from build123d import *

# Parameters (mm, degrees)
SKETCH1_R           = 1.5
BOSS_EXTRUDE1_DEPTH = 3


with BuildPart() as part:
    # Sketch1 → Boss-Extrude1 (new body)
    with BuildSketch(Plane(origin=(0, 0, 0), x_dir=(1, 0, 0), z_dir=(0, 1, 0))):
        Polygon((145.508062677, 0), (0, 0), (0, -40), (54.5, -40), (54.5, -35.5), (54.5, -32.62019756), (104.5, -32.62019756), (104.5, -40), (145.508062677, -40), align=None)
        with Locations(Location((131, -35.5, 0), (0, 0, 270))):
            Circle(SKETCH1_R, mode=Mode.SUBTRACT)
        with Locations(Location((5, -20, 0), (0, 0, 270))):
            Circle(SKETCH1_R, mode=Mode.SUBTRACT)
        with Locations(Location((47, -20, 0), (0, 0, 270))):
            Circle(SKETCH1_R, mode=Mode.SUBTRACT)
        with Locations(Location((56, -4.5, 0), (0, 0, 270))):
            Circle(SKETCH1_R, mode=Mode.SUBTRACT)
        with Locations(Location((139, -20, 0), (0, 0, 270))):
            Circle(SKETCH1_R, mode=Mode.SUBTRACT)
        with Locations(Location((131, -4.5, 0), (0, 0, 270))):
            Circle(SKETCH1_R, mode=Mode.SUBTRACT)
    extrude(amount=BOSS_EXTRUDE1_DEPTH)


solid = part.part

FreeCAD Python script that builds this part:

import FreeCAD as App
import Part
import Sketcher
from FreeCAD import Vector
Q = App.Units.Quantity


def add_polygon(sketch, points):
    """Adds a closed chain of lines whose ends are joined by coincident constraints."""
    first, n = sketch.GeometryCount, len(points)
    for a, b in zip(points, points[1:] + points[:1]):
        sketch.addGeometry(Part.LineSegment(App.Vector(*a, 0), App.Vector(*b, 0)), False)
    for i in range(n):
        sketch.addConstraint(Sketcher.Constraint("Coincident", first + i, 2, first + (i + 1) % n, 1))

doc = App.newDocument("Part")
body = doc.addObject("PartDesign::Body", "Body")

sketch1 = body.newObject("Sketcher::SketchObject", "Sketch")
sketch1.AttachmentSupport = (doc.getObject("XZ_Plane"), [""])
sketch1.MapMode = "FlatFace"
add_polygon(sketch1, [(145.5, 0), (0, 0), (0, 40), (54.5, 40), (54.5, 32.6), (104.5, 32.6), (104.5, 40), (145.5, 40)])
sketch1.addGeometry(Part.Circle(Vector(131, 35.5, 0), Vector(0, 0, 1), 1.5), False)
sketch1.addGeometry(Part.Circle(Vector(5, 20, 0), Vector(0, 0, 1), 1.5), False)
sketch1.addGeometry(Part.Circle(Vector(47, 20, 0), Vector(0, 0, 1), 1.5), False)
sketch1.addGeometry(Part.Circle(Vector(56, 4.5, 0), Vector(0, 0, 1), 1.5), False)
sketch1.addGeometry(Part.Circle(Vector(139, 20, 0), Vector(0, 0, 1), 1.5), False)
sketch1.addGeometry(Part.Circle(Vector(131, 4.5, 0), Vector(0, 0, 1), 1.5), False)
sketch1.addConstraint([
    Sketcher.Constraint("Horizontal", 0),
    Sketcher.Constraint("Vertical", 1),
    Sketcher.Constraint("Horizontal", 2),
    Sketcher.Constraint("Vertical", 3),
    Sketcher.Constraint("Horizontal", 4),
    Sketcher.Constraint("Vertical", 5),
    Sketcher.Constraint("Horizontal", 6),
    Sketcher.Constraint("Vertical", 7),
    Sketcher.Constraint("Coincident", 0, 2, -1, 1),
    Sketcher.Constraint("Equal", 8, 9),
    Sketcher.Constraint("Equal", 9, 10),
    Sketcher.Constraint("Equal", 10, 11),
    Sketcher.Constraint("Equal", 11, 12),
    Sketcher.Constraint("Equal", 12, 13),
    Sketcher.Constraint("Horizontal", 9, 3, 10, 3),
    Sketcher.Constraint("Horizontal", 10, 3, 12, 3),
    Sketcher.Constraint("Horizontal", 11, 3, 13, 3),
    Sketcher.Constraint("Horizontal", 2, 2, 5, 2),
    Sketcher.Constraint("Vertical", 8, 3, 13, 3),
    Sketcher.Constraint("Diameter", 8, Q("3 mm")),
    Sketcher.Constraint("DistanceX", 4, 1, 4, 2, Q("50 mm")),
    Sketcher.Constraint("DistanceY", 1, 1, 1, 2, Q("40 mm")),
    Sketcher.Constraint("DistanceX", 2, 1, 2, 2, Q("54.5 mm")),
    Sketcher.Constraint("DistanceX", -1, 1, 8, 3, Q("131 mm")),
    Sketcher.Constraint("DistanceX", -1, 1, 9, 3, Q("5 mm")),
    Sketcher.Constraint("DistanceY", -1, 1, 9, 3, Q("20 mm")),
    Sketcher.Constraint("DistanceX", -1, 1, 10, 3, Q("47 mm")),
    Sketcher.Constraint("DistanceX", -1, 1, 11, 3, Q("56 mm")),
    Sketcher.Constraint("DistanceX", -1, 1, 12, 3, Q("139 mm")),
    Sketcher.Constraint("DistanceY", 11, 3, 8, 3, Q("31 mm")),
    Sketcher.Constraint("DistanceY", -1, 1, 8, 3, Q("35.5 mm")),
    Sketcher.Constraint("DistanceX", 0, 2, 0, 1, Q("145.508063 mm")),
    Sketcher.Constraint("DistanceY", 3, 2, 3, 1, Q("7.379802 mm")),
])
pad1 = body.newObject("PartDesign::Pad", "Pad")
pad1.Profile = sketch1
pad1.Length = 3
pad1.Reversed = True

doc.recompute()
